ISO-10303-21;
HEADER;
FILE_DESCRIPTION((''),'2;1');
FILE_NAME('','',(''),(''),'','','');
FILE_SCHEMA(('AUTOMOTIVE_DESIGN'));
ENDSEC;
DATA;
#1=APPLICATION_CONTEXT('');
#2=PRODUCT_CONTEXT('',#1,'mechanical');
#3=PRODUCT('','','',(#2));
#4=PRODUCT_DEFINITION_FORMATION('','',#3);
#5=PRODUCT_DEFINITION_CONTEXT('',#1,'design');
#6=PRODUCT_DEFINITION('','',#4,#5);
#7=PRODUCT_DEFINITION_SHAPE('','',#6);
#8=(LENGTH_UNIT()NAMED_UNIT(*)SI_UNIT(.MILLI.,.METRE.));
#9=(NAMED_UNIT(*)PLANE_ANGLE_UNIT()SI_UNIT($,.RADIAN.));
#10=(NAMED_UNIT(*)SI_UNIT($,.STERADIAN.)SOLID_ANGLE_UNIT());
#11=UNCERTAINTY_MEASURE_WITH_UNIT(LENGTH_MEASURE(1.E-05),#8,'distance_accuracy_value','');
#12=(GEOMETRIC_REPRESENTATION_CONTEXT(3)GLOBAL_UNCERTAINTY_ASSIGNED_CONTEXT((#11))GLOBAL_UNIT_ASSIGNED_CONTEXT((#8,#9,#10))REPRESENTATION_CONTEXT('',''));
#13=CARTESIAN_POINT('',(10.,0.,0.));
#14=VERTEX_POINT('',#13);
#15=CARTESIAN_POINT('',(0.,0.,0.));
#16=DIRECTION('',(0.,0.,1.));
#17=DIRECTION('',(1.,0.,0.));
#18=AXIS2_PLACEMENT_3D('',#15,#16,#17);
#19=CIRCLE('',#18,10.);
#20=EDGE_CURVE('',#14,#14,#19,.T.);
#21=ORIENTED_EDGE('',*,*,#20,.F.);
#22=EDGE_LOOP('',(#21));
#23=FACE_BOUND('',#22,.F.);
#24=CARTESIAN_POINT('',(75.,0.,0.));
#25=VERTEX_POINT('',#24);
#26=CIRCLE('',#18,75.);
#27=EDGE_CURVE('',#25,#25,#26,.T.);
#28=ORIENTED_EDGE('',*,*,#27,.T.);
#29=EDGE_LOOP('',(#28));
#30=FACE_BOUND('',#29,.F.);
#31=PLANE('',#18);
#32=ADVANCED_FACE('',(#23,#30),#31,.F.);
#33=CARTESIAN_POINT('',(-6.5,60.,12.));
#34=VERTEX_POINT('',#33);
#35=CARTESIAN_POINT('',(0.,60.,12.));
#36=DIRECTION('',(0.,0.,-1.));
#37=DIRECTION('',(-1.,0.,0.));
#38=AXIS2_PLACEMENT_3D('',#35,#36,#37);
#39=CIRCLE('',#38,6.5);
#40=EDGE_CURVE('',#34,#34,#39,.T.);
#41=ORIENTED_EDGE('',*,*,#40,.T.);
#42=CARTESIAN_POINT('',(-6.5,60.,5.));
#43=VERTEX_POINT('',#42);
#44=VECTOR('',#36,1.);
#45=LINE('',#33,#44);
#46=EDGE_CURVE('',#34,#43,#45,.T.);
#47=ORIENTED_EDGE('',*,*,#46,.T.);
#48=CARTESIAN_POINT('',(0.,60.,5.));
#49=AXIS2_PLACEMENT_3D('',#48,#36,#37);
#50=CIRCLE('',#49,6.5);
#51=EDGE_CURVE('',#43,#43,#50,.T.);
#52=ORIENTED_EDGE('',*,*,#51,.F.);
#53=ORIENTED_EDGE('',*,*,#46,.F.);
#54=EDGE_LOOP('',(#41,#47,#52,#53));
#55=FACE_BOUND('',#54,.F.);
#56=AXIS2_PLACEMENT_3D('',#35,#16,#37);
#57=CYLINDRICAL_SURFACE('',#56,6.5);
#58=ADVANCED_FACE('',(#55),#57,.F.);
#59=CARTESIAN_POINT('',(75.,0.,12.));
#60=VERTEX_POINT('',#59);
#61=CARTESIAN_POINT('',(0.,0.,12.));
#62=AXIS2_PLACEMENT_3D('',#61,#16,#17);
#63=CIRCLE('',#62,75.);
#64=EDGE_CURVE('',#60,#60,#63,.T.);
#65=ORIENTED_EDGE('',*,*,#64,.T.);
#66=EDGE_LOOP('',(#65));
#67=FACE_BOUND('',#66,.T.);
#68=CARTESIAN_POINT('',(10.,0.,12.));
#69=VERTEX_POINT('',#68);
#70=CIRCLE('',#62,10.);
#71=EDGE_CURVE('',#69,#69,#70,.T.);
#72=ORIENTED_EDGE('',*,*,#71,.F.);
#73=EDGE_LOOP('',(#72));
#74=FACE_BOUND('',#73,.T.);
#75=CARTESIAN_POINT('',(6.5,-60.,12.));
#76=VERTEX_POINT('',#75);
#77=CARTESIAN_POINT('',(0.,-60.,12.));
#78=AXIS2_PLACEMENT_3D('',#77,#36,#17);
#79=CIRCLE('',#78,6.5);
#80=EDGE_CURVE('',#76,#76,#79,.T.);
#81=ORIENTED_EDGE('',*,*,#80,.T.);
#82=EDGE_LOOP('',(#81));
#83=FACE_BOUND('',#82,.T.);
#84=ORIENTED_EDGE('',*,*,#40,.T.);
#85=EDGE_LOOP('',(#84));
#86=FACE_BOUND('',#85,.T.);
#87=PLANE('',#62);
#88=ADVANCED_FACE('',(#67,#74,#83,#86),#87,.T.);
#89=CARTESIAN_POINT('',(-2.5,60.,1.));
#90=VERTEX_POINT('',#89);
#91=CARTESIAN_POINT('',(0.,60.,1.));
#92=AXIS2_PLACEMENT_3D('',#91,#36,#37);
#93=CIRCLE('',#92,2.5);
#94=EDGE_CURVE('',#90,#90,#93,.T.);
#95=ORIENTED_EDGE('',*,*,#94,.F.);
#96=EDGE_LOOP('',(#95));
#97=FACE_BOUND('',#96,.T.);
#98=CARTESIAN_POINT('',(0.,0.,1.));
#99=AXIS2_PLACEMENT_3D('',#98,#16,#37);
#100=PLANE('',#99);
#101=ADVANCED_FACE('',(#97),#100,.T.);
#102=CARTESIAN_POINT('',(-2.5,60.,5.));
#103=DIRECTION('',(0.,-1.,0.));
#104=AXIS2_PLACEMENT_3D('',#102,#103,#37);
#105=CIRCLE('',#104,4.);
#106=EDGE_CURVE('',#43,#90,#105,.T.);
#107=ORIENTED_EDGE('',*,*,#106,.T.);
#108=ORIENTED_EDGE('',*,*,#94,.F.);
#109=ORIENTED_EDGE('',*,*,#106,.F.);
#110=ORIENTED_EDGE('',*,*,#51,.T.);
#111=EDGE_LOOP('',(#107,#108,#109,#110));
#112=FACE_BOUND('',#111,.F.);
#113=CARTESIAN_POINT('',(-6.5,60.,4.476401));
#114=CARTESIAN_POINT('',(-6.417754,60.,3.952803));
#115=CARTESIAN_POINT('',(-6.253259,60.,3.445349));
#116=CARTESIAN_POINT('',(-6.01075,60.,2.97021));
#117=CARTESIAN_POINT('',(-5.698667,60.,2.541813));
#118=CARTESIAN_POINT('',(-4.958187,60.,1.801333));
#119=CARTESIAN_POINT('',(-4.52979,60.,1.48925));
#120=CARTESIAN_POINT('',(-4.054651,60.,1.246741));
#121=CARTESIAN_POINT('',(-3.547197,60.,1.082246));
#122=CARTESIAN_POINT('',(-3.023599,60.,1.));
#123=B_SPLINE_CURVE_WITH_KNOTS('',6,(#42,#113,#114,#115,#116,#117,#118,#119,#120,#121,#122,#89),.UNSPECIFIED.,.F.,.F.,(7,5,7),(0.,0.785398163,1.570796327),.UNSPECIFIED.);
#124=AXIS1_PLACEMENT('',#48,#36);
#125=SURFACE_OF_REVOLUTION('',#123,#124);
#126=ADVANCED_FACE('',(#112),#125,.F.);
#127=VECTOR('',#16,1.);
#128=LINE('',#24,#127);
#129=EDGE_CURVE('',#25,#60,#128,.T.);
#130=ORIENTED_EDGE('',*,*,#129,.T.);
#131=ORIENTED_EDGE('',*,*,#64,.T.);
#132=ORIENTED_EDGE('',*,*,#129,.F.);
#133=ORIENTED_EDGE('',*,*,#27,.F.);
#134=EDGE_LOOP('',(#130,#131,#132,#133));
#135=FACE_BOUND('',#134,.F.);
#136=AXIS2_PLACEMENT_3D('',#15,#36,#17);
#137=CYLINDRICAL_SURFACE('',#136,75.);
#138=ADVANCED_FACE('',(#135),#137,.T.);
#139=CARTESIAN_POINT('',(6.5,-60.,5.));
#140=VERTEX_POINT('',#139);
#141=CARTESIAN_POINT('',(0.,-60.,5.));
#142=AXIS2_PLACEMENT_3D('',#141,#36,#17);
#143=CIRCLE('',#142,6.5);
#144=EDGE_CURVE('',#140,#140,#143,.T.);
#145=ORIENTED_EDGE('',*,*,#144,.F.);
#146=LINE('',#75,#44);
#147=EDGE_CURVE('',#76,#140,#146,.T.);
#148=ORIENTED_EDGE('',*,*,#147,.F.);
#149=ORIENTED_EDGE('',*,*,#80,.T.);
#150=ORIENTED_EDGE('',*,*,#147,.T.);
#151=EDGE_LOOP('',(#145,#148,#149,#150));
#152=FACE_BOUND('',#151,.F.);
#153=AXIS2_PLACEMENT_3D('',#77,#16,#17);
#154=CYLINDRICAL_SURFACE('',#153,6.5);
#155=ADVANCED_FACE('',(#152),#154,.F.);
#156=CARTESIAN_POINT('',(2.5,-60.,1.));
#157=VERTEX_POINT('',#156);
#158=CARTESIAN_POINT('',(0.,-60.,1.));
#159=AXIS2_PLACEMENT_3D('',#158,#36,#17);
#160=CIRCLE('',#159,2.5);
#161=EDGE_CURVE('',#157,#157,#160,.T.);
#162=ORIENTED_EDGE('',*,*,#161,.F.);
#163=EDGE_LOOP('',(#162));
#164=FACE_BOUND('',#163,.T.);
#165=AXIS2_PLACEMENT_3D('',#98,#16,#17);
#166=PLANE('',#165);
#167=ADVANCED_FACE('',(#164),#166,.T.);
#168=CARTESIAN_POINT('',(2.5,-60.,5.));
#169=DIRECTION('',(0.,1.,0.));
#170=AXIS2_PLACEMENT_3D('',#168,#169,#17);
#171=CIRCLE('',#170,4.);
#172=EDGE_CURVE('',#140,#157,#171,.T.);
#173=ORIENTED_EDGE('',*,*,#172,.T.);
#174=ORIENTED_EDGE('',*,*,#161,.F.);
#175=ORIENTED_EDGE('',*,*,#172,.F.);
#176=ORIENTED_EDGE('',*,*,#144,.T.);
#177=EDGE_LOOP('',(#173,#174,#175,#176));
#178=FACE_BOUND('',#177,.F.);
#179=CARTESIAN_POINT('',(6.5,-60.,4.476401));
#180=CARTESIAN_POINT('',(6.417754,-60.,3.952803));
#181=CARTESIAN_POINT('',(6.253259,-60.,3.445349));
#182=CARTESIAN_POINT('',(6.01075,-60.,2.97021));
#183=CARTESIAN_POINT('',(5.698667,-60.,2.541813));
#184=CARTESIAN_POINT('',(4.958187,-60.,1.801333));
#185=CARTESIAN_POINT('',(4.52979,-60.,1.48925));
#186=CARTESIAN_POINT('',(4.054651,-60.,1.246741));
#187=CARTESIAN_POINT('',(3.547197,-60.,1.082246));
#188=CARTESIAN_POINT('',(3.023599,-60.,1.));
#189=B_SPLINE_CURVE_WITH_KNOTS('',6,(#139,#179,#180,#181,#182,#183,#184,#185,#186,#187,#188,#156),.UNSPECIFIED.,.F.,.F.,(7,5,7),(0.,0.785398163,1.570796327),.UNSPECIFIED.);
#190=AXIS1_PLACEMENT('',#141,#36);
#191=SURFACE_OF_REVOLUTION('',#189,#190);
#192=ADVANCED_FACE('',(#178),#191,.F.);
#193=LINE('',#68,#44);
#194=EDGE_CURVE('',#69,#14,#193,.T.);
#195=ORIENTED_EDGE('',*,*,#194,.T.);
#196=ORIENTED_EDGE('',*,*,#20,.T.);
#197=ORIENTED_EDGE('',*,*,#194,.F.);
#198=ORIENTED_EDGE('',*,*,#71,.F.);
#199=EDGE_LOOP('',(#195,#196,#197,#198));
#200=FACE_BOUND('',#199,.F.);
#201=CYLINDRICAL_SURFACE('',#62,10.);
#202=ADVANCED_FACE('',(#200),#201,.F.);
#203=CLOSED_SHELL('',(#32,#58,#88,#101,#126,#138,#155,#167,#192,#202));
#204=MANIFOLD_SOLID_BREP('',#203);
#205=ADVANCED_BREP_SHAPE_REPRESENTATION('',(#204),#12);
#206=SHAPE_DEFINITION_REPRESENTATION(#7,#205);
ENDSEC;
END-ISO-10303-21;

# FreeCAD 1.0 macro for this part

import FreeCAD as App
import Part
import Sketcher

V = App.Vector
Q = App.Units.Quantity


def edges_at(feature, points):
    """Names of the edges that pass closest to the given points."""
    edges = feature.Shape.Edges
    near = lambda p: min(range(len(edges)), key=lambda i: edges[i].distToShape(Part.Vertex(*p))[0])
    return sorted({f"Edge{near(p) + 1}" for p in points})

doc = App.newDocument("Part")
params = doc.addObject("Spreadsheet::Sheet", "Params")
for row, (alias, value) in enumerate([
    ("sketch1_diameter", "150 mm"),
    ("pad1_length", "12 mm"),
    ("sketch2_diameter", "13 mm"),
    ("pocket1_length", "11 mm"),
    ("fillet_radius", "4 mm"),
    ("sketch3_diameter", "20 mm"),
    ("pocket2_length", "12 mm"),
], start=1):
    params.set(f"A{row}", alias)
    params.set(f"B{row}", "=" + value)
    params.setAlias(f"B{row}", alias)

body = doc.addObject("PartDesign::Body", "Body")

# Sketch on XY plane
sketch1 = body.newObject("Sketcher::SketchObject", "Sketch")
sketch1.AttachmentSupport = (doc.getObject("XY_Plane"), [""])
sketch1.MapMode = "FlatFace"
sketch1.addGeometry(Part.Circle(V(0, 0, 0), V(0, 0, 1), 75), False)
sketch1.addConstraint(Sketcher.Constraint("Coincident", 0, 3, -1, 1))
sketch1.addConstraint(Sketcher.Constraint("Diameter", 0, Q("150 mm")))
sketch1.setExpression("Constraints[1]", "Params.sketch1_diameter")
pad1 = body.newObject("PartDesign::Pad", "Pad")
pad1.Profile = sketch1
pad1.setExpression("Length", "Params.pad1_length")

# Sketch on XY plane
sketch2 = body.newObject("Sketcher::SketchObject", "Sketch001")
sketch2.AttachmentSupport = (doc.getObject("XY_Plane"), [""])
sketch2.MapMode = "FlatFace"
sketch2.AttachmentOffset = App.Placement(V(0, 0, 12), App.Rotation())
sketch2.addGeometry(Part.Circle(V(0, -60, 0), V(0, 0, 1), 6), False)
sketch2.addConstraint(Sketcher.Constraint("PointOnObject", 0, 3, -2))
sketch2.addConstraint(Sketcher.Constraint("Diameter", 0, Q("13 mm")))
sketch2.addConstraint(Sketcher.Constraint("DistanceY", 0, 3, -1, 1, Q("60 mm")))
sketch2.setExpression("Constraints[1]", "Params.sketch2_diameter")
pocket1 = body.newObject("PartDesign::Pocket", "Pocket")
pocket1.Profile = sketch2
pocket1.setExpression("Length", "Params.pocket1_length")
doc.recompute()

fillet = body.newObject("PartDesign::Fillet", "Fillet")
fillet.Base = (pocket1, edges_at(pocket1, [(-6.5, -60, 1)]))
fillet.setExpression("Radius", "Params.fillet_radius")
doc.recompute()

polarpattern = body.newObject("PartDesign::PolarPattern", "PolarPattern")
polarpattern.Originals = [pocket1, fillet]
polarpattern.Axis = (doc.getObject("Z_Axis"), [""])
polarpattern.Angle = 360
polarpattern.Occurrences = 2
body.Tip = polarpattern

# Sketch on XY plane
sketch3 = body.newObject("Sketcher::SketchObject", "Sketch002")
sketch3.AttachmentSupport = (doc.getObject("XY_Plane"), [""])
sketch3.MapMode = "FlatFace"
sketch3.AttachmentOffset = App.Placement(V(0, 0, 12), App.Rotation())
sketch3.addGeometry(Part.Circle(V(0, 0, 0), V(0, 0, 1), 10), False)
sketch3.addConstraint(Sketcher.Constraint("Coincident", 0, 3, -1, 1))
sketch3.addConstraint(Sketcher.Constraint("Diameter", 0, Q("20 mm")))
sketch3.setExpression("Constraints[1]", "Params.sketch3_diameter")
pocket2 = body.newObject("PartDesign::Pocket", "Pocket001")
pocket2.Profile = sketch3
pocket2.setExpression("Length", "Params.pocket2_length")

doc.recompute()
